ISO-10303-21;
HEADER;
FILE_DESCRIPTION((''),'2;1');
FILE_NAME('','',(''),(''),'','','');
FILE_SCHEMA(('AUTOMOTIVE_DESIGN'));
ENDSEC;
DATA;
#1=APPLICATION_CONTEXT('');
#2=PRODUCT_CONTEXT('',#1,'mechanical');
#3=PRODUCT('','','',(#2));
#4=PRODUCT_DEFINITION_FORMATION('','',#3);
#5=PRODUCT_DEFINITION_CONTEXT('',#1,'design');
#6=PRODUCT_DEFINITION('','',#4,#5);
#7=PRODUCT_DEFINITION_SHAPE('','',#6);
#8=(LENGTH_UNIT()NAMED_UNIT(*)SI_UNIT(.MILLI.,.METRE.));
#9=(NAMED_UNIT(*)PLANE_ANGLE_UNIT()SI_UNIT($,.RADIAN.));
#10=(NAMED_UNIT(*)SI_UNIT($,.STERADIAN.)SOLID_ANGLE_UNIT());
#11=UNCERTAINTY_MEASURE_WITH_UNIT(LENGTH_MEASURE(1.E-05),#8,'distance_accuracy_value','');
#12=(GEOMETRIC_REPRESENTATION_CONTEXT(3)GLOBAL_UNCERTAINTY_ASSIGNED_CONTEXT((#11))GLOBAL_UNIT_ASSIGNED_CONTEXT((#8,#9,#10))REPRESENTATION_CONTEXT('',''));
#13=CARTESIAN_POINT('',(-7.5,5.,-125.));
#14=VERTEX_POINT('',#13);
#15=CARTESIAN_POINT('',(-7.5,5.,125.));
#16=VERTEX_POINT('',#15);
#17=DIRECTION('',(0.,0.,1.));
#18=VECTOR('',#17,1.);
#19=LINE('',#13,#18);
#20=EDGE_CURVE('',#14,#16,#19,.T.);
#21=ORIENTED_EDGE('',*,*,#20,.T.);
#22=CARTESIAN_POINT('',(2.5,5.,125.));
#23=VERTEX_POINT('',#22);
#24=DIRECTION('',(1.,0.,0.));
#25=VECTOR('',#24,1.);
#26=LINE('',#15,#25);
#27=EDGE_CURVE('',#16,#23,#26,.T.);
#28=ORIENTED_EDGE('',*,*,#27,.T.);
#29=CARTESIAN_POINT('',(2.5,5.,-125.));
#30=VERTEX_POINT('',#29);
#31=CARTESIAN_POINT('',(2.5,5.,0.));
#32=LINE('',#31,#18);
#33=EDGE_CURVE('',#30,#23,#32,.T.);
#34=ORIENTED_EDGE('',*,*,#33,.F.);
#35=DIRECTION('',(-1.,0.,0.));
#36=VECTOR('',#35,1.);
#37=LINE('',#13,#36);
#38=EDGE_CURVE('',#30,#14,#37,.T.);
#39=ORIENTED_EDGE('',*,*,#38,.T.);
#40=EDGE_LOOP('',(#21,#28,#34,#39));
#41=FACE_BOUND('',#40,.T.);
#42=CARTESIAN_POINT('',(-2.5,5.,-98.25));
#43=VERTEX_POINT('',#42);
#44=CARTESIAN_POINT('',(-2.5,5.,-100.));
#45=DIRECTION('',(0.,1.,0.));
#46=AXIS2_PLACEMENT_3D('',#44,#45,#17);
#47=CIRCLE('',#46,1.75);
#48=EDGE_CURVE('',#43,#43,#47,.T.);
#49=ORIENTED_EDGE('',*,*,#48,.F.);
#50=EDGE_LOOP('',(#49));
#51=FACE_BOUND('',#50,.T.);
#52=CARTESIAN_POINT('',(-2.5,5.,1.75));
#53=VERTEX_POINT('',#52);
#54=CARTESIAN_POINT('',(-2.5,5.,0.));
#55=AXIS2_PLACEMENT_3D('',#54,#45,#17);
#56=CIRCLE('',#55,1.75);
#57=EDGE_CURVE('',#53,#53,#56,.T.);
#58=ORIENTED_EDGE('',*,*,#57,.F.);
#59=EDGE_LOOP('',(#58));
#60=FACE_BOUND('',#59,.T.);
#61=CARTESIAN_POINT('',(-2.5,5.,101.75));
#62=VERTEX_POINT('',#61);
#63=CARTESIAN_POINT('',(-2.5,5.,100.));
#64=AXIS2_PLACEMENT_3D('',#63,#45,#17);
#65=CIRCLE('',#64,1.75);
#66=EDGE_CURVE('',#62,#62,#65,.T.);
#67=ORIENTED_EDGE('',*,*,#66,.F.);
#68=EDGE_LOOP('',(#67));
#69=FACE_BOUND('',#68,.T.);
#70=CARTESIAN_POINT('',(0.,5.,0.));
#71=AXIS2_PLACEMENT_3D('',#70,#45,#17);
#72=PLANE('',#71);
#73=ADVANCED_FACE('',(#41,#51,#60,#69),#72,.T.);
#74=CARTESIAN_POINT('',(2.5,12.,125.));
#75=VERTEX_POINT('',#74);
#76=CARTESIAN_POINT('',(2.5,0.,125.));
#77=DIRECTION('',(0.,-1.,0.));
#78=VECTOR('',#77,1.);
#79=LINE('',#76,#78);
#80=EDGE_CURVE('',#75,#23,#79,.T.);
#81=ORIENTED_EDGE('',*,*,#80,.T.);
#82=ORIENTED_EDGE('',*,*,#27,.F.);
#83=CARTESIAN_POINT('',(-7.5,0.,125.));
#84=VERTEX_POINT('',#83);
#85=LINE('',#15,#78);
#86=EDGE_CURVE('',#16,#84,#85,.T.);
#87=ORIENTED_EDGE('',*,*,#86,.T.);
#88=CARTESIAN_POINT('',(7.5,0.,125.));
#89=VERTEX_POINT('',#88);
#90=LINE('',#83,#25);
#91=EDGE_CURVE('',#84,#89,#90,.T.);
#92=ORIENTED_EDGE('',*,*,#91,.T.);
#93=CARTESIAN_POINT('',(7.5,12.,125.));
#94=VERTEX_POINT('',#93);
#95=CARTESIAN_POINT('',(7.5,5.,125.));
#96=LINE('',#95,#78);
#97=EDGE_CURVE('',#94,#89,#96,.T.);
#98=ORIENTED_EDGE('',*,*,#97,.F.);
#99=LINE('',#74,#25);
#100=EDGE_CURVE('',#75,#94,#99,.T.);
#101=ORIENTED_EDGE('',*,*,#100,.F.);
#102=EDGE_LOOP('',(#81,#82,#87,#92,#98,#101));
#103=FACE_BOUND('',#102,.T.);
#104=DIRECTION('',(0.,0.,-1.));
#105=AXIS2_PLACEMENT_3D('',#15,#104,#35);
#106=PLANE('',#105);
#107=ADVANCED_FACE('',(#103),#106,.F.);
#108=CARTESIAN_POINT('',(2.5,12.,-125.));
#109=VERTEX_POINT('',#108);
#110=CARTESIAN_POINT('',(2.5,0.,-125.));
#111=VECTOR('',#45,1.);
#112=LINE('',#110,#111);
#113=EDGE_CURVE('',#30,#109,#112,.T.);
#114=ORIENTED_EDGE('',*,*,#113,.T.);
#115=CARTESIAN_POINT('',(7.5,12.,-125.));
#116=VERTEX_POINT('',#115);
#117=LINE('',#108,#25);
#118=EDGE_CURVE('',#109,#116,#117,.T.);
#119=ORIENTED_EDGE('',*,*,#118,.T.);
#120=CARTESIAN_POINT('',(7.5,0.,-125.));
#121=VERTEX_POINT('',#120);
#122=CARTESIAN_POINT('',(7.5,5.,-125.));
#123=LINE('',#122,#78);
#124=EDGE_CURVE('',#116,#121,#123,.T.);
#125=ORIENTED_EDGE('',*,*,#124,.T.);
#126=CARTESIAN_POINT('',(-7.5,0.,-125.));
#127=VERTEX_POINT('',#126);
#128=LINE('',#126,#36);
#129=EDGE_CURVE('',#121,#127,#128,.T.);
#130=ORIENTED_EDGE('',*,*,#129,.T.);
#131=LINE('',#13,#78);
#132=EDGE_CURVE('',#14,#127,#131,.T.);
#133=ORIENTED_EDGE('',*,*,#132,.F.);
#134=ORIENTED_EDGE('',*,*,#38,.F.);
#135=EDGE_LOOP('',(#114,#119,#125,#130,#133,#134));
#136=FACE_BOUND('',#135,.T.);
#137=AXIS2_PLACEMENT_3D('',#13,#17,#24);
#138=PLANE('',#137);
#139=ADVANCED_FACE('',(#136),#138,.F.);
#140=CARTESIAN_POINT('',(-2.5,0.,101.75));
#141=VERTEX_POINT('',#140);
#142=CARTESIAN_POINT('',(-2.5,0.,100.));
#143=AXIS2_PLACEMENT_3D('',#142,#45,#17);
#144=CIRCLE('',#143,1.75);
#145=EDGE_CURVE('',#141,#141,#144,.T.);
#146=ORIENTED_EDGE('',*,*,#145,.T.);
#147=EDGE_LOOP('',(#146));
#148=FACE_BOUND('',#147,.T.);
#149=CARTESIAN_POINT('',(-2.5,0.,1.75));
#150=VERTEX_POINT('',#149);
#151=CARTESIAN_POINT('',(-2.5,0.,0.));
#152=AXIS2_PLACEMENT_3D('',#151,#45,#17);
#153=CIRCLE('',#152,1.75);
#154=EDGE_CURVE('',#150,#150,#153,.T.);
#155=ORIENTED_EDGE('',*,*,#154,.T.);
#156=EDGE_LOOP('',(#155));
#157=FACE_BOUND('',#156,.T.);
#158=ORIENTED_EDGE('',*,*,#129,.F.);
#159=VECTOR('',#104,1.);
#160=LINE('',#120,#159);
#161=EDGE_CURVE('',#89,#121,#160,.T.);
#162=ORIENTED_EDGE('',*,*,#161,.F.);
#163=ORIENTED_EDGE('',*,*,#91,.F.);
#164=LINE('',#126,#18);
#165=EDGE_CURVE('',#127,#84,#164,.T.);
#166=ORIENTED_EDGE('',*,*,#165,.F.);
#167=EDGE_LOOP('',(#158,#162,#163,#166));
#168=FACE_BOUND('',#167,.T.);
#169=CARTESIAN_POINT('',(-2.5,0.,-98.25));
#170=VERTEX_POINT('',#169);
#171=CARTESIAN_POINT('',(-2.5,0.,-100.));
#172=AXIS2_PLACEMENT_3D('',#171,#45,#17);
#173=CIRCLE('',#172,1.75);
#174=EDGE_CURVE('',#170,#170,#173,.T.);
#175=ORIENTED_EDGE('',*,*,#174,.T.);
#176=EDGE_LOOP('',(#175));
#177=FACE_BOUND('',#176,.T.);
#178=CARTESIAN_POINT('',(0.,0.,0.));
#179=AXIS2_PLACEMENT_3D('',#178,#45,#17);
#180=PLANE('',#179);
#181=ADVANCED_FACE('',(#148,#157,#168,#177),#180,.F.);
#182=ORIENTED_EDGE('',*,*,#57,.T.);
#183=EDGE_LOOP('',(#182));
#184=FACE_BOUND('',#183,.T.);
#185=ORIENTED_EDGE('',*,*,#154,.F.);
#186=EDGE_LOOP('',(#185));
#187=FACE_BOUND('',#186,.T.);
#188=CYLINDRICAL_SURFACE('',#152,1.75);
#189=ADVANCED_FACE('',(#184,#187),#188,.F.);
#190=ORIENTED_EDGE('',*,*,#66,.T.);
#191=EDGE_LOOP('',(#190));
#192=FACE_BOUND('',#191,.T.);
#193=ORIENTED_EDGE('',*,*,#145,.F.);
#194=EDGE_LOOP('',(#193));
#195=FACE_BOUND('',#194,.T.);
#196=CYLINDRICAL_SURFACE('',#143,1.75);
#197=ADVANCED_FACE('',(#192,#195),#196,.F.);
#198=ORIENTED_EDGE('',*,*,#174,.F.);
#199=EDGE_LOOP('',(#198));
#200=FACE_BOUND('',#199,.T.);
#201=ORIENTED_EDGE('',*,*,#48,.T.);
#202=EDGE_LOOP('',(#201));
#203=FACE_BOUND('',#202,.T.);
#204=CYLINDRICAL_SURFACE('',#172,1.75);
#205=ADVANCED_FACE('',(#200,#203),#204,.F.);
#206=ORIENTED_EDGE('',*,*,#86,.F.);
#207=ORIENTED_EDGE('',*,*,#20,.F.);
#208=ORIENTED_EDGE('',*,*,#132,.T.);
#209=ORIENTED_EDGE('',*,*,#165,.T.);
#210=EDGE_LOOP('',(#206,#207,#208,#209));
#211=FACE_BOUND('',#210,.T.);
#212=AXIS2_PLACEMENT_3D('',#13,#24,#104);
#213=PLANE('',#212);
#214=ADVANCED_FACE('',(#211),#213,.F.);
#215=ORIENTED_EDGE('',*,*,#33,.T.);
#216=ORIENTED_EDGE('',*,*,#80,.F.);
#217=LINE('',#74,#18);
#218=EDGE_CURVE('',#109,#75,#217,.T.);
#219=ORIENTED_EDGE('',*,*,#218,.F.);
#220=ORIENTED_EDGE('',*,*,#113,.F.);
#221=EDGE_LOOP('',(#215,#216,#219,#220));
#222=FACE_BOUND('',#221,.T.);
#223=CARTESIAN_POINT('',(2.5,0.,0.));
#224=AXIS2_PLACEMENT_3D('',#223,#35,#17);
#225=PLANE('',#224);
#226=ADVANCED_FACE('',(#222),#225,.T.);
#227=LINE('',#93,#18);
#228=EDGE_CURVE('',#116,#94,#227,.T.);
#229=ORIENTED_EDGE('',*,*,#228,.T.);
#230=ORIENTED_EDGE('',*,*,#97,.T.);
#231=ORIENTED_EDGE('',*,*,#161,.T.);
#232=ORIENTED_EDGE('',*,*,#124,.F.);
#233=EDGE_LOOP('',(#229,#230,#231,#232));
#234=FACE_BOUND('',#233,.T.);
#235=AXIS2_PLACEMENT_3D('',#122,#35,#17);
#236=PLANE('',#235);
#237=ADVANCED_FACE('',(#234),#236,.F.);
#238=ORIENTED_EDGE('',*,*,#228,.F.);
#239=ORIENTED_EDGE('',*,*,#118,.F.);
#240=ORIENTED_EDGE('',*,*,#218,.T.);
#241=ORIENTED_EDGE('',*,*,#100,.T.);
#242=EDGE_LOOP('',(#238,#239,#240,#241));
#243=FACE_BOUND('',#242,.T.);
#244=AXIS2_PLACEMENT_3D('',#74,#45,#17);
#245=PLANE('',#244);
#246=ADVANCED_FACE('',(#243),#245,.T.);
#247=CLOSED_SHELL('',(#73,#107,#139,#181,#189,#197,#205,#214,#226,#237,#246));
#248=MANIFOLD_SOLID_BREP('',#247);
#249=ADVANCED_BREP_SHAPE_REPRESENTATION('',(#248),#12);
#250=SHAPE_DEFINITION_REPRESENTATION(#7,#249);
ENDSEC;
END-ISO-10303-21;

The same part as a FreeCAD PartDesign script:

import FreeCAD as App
import Part
import Sketcher
Q = App.Units.Quantity


def add_polygon(sketch, points):
    """Adds a closed chain of lines whose ends are joined by coincident constraints."""
    first, n = sketch.GeometryCount, len(points)
    for a, b in zip(points, points[1:] + points[:1]):
        sketch.addGeometry(Part.LineSegment(App.Vector(*a, 0), App.Vector(*b, 0)), False)
    for i in range(n):
        sketch.addConstraint(Sketcher.Constraint("Coincident", first + i, 2, first + (i + 1) % n, 1))

doc = App.newDocument("Part")
body = doc.addObject("PartDesign::Body", "Body")

sketch1 = body.newObject("Sketcher::SketchObject", "Sketch")
sketch1.AttachmentSupport = (doc.getObject("XZ_Plane"), [""])
sketch1.MapMode = "FlatFace"
add_polygon(sketch1, [(-8, -125), (-8, 125), (8, 125), (8, -125)])
sketch1.addConstraint([
    Sketcher.Constraint("Vertical", 0),
    Sketcher.Constraint("Horizontal", 1),
    Sketcher.Constraint("Vertical", 2),
    Sketcher.Constraint("Horizontal", 3),
    Sketcher.Constraint("Symmetric", 0, 2, 2, 2, -1, 1),
    Sketcher.Constraint("DistanceX", 1, 1, 1, 2, Q("15 mm")),
    Sketcher.Constraint("DistanceY", 0, 1, 0, 2, Q("250 mm")),
])
pad1 = body.newObject("PartDesign::Pad", "Pad")
pad1.Profile = sketch1
pad1.Length = 5
pad1.Reversed = True

sketch2 = body.newObject("Sketcher::SketchObject", "Sketch001")
sketch2.AttachmentSupport = (doc.getObject("YZ_Plane"), [""])
sketch2.MapMode = "FlatFace"
sketch2.AttachmentOffset = App.Placement(App.Vector(0, 0, 7.5), App.Rotation())
add_polygon(sketch2, [(12, 125), (0, 125), (0, -125), (12, -125)])
sketch2.addConstraint([
    Sketcher.Constraint("Horizontal", 0),
    Sketcher.Constraint("Vertical", 1),
    Sketcher.Constraint("Horizontal", 2),
    Sketcher.Constraint("Vertical", 3),
    Sketcher.Constraint("Symmetric", 0, 2, 1, 2, -1, 1),
    Sketcher.Constraint("DistanceX", 0, 2, 0, 1, Q("12 mm")),
    Sketcher.Constraint("DistanceY", 1, 2, 1, 1, Q("250 mm")),
])
pad2 = body.newObject("PartDesign::Pad", "Pad001")
pad2.Profile = sketch2
pad2.Length = 5
pad2.Reversed = True

sketch3 = body.newObject("Sketcher::SketchObject", "Sketch002")
sketch3.AttachmentSupport = (doc.getObject("XZ_Plane"), [""])
sketch3.MapMode = "FlatFace"
sketch3.AttachmentOffset = App.Placement(App.Vector(0, 0, -5), App.Rotation())
sketch3.addGeometry([
    Part.Circle(App.Vector(-2.5, -100, 0), App.Vector(0, 0, 1), 1.8),
    Part.Circle(App.Vector(-2.5, 0, 0), App.Vector(0, 0, 1), 1.8),
    Part.Circle(App.Vector(-2.5, 100, 0), App.Vector(0, 0, 1), 1.8),
], False)
sketch3.addConstraint([
    Sketcher.Constraint("Equal", 0, 1),
    Sketcher.Constraint("Equal", 1, 2),
    Sketcher.Constraint("Symmetric", 0, 3, 2, 3, -1),
    Sketcher.Constraint("PointOnObject", 1, 3, -1),
    Sketcher.Constraint("Vertical", 0, 3, 1, 3),
    Sketcher.Constraint("Diameter", 0, Q("3.5 mm")),
    Sketcher.Constraint("DistanceY", 0, 3, -1, 1, Q("100 mm")),
    Sketcher.Constraint("DistanceX", 0, 3, -1, 1, Q("2.5 mm")),
])
pocket1 = body.newObject("PartDesign::Pocket", "Pocket")
pocket1.Profile = sketch3
pocket1.Length = 5
pocket1.Reversed = True

doc.recompute()
